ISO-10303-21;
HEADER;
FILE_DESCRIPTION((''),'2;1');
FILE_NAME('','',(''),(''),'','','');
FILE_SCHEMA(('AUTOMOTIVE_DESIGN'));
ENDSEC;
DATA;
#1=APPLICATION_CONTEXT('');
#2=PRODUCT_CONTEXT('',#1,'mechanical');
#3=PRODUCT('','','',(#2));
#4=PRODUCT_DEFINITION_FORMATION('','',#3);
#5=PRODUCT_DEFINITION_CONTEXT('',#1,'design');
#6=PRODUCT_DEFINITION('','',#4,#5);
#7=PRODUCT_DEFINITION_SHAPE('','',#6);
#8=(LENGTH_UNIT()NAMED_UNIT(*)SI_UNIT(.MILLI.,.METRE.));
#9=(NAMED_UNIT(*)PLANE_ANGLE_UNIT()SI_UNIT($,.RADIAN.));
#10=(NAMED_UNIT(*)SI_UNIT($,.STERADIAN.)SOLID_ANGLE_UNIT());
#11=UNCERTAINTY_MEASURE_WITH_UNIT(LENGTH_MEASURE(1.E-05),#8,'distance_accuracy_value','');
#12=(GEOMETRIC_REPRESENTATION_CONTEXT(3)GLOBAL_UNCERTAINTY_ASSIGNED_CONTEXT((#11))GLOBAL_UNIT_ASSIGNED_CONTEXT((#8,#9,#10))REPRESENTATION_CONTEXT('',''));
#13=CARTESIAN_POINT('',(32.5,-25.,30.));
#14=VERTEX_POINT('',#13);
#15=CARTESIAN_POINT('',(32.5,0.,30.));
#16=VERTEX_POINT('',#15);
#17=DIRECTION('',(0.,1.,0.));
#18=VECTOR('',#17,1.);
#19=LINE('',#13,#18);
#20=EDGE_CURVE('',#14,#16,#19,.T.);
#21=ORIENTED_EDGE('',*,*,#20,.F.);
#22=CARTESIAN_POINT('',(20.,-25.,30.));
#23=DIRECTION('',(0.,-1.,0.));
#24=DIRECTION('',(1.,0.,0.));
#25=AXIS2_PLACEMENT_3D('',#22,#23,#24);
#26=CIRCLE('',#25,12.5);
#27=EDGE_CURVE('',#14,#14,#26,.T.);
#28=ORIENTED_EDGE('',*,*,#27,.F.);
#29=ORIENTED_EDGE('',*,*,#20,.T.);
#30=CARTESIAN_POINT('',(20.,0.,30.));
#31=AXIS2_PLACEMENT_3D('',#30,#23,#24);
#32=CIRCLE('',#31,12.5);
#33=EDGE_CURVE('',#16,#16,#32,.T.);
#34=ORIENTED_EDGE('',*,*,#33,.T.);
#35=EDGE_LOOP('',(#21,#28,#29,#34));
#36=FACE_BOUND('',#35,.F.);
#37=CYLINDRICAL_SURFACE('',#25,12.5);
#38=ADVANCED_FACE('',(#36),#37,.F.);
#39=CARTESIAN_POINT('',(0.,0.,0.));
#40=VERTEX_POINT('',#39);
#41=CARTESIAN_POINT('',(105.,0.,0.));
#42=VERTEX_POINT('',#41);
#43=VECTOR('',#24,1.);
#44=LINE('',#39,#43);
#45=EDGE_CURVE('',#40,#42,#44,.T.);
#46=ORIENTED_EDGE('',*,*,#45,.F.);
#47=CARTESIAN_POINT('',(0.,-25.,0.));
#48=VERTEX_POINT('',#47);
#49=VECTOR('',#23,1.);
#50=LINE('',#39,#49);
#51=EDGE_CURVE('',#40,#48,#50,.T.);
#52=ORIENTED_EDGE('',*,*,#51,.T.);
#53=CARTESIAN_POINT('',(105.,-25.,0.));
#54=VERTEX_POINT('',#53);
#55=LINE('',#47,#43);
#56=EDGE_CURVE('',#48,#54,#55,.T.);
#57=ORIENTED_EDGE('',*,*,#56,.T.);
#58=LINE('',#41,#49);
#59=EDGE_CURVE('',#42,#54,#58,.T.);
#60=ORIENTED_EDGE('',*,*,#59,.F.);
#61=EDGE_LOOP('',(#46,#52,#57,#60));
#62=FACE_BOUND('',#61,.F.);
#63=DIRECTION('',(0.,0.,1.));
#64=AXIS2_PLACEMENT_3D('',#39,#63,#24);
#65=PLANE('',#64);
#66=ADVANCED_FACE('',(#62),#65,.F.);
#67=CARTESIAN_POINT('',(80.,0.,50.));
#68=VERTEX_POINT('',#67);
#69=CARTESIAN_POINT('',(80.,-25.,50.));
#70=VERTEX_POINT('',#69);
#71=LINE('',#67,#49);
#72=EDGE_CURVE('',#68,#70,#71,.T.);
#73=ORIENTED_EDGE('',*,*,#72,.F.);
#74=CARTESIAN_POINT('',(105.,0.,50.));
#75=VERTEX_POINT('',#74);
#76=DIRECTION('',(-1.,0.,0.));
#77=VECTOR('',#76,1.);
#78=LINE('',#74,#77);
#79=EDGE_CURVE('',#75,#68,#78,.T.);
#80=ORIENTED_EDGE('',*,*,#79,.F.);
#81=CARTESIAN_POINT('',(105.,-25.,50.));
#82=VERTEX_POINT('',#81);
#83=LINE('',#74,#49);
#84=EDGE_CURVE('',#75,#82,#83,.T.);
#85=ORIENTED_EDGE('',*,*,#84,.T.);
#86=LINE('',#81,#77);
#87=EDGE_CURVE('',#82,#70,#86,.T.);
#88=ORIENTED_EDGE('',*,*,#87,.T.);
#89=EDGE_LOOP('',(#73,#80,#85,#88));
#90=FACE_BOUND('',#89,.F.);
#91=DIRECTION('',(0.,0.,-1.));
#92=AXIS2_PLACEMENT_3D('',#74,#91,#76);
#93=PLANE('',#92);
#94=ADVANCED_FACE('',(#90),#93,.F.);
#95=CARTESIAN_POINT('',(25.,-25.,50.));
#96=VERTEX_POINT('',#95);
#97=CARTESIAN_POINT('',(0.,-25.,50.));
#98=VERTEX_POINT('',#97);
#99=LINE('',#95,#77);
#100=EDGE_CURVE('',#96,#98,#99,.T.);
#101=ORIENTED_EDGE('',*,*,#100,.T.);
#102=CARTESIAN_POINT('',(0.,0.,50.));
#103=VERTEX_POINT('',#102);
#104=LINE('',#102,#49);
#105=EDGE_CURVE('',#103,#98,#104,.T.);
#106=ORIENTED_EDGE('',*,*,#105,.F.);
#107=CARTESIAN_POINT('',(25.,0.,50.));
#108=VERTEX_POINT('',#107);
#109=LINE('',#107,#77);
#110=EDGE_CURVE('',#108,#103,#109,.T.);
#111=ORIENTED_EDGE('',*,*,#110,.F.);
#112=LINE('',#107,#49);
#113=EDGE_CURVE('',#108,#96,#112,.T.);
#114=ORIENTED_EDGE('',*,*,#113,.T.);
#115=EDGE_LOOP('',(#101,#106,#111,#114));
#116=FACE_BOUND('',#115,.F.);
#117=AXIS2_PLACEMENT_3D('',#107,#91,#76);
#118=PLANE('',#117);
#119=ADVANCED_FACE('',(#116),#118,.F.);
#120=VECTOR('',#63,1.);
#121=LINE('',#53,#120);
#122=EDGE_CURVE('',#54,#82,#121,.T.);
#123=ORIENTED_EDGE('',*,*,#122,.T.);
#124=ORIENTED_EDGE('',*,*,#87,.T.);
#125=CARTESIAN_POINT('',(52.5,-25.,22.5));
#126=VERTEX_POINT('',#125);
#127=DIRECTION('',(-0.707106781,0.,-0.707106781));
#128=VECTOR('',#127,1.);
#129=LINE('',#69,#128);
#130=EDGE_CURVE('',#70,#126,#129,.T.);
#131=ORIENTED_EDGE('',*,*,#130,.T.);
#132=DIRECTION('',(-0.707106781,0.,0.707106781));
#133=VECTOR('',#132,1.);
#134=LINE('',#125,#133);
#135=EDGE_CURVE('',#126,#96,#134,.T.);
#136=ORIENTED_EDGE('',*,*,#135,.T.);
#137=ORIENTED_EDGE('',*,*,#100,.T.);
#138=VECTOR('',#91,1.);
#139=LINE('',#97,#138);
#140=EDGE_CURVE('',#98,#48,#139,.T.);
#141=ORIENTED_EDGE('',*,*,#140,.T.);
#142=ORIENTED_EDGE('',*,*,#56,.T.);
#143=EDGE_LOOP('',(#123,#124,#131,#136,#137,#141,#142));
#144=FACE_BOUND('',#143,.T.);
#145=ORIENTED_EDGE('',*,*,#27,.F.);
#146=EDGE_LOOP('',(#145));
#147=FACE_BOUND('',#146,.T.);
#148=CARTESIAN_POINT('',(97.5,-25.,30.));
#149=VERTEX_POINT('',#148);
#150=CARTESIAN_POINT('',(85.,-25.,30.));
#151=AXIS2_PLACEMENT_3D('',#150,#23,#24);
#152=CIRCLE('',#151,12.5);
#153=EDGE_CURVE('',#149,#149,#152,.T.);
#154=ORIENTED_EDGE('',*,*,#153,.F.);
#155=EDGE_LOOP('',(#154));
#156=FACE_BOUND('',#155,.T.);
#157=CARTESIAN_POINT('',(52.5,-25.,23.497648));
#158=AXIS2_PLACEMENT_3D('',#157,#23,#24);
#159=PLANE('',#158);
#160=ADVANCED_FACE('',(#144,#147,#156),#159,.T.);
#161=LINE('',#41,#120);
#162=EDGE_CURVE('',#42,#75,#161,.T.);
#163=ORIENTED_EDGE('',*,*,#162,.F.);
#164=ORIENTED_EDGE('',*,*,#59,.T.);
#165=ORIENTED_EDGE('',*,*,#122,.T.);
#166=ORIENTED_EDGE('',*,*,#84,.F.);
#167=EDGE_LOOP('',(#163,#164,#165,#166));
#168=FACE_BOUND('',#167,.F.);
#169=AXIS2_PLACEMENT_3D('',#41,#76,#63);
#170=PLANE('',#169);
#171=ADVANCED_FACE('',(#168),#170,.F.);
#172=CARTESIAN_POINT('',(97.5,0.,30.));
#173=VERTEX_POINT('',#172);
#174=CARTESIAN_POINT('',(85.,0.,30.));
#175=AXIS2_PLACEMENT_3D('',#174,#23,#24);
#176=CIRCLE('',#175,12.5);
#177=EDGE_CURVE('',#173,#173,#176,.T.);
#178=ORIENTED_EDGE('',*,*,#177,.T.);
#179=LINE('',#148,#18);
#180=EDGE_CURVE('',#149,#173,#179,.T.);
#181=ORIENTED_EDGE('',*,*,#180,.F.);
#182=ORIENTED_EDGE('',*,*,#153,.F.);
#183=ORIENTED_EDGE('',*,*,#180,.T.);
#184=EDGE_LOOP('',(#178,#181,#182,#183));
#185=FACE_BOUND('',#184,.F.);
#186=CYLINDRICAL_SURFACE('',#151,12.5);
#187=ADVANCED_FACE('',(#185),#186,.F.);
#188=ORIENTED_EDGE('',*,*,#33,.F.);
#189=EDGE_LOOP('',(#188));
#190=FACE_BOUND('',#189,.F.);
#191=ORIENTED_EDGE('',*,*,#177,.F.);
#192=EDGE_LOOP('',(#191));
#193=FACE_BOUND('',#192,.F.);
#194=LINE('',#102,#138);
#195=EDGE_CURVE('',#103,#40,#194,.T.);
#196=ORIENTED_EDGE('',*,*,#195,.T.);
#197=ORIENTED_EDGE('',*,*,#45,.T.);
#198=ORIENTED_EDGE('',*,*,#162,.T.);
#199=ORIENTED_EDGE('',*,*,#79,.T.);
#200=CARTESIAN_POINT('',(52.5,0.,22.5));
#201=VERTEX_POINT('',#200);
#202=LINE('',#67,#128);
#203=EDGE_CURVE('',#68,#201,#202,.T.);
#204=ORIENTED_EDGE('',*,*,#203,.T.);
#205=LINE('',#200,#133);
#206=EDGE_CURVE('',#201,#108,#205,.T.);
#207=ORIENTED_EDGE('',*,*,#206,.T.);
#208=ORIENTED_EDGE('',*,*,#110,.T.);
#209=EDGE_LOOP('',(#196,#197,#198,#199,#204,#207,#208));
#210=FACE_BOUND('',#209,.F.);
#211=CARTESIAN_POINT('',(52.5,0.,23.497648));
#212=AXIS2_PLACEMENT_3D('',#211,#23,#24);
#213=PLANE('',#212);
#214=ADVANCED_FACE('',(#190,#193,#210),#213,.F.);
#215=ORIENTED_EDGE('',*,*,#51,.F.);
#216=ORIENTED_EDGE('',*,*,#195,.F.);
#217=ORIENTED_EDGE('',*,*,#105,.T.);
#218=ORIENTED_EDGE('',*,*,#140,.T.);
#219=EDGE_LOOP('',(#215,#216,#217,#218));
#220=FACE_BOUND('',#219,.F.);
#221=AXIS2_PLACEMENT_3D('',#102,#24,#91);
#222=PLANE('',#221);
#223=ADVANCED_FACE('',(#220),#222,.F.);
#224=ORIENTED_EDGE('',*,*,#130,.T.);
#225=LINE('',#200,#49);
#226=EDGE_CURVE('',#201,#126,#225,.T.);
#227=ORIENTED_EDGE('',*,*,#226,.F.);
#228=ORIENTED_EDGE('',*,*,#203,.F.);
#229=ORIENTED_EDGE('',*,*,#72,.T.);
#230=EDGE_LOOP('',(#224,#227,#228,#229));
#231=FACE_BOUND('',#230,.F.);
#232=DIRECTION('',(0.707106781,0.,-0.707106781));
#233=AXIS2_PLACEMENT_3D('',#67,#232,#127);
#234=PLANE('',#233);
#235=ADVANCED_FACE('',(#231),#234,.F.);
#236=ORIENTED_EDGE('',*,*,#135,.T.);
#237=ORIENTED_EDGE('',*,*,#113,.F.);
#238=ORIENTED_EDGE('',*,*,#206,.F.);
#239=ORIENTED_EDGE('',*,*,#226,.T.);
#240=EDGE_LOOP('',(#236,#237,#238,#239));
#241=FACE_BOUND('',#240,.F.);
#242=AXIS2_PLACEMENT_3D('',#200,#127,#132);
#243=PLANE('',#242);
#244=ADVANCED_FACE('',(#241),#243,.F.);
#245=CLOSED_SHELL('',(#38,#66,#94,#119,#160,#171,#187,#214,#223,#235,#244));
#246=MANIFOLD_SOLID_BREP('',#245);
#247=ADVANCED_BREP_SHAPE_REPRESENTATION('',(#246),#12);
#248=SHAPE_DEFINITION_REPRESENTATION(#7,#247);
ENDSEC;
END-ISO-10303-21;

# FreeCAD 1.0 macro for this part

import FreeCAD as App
import Part
import Sketcher

V = App.Vector
Q = App.Units.Quantity


def add_polygon(sketch, points):
    """Adds a closed chain of lines whose ends are joined by coincident constraints."""
    first, n = sketch.GeometryCount, len(points)
    for a, b in zip(points, points[1:] + points[:1]):
        sketch.addGeometry(Part.LineSegment(App.Vector(*a, 0), App.Vector(*b, 0)), False)
    for i in range(n):
        sketch.addConstraint(Sketcher.Constraint("Coincident", first + i, 2, first + (i + 1) % n, 1))

doc = App.newDocument("Part")
body = doc.addObject("PartDesign::Body", "Body")

sketch1 = body.newObject("Sketcher::SketchObject", "Sketch")
sketch1.AttachmentSupport = (doc.getObject("XZ_Plane"), [""])
sketch1.MapMode = "FlatFace"
add_polygon(sketch1, [(0, 50), (0, 0), (105, 0), (105, 50), (80, 50), (52, 22), (25, 50)])
sketch1.addConstraint([
    Sketcher.Constraint("Vertical", 0),
    Sketcher.Constraint("Horizontal", 1),
    Sketcher.Constraint("Vertical", 2),
    Sketcher.Constraint("Horizontal", 3),
    Sketcher.Constraint("Horizontal", 6),
    Sketcher.Constraint("Coincident", 0, 2, -1, 1),
    Sketcher.Constraint("Perpendicular", 4, 5),
    Sketcher.Constraint("Horizontal", 3, 2, 5, 2),
    Sketcher.Constraint("Equal", 3, 6),
    Sketcher.Constraint("Equal", 4, 5),
    Sketcher.Constraint("DistanceX", 1, 1, 1, 2, Q("105 mm")),
    Sketcher.Constraint("DistanceX", 3, 2, 3, 1, Q("25 mm")),
    Sketcher.Constraint("DistanceY", 0, 2, 0, 1, Q("50 mm")),
])
pad1 = body.newObject("PartDesign::Pad", "Pad")
pad1.Profile = sketch1
pad1.Length = 25

sketch2 = body.newObject("Sketcher::SketchObject", "Sketch001")
sketch2.AttachmentSupport = (doc.getObject("XZ_Plane"), [""])
sketch2.MapMode = "FlatFace"
sketch2.AttachmentOffset = App.Placement(V(0, 0, 25), App.Rotation())
sketch2.addGeometry([
    Part.Circle(V(20, 30, 0), V(0, 0, 1), 12),
    Part.Circle(V(85, 30, 0), V(0, 0, 1), 12),
], False)
sketch2.addConstraint([
    Sketcher.Constraint("Equal", 0, 1),
    Sketcher.Constraint("Horizontal", 0, 3, 1, 3),
    Sketcher.Constraint("Diameter", 0, Q("25 mm")),
    Sketcher.Constraint("DistanceX", -1, 1, 0, 3, Q("20 mm")),
    Sketcher.Constraint("DistanceY", -1, 1, 0, 3, Q("30 mm")),
    Sketcher.Constraint("DistanceX", -1, 1, 1, 3, Q("85 mm")),
])
pocket1 = body.newObject("PartDesign::Pocket", "Pocket")
pocket1.Profile = sketch2
pocket1.Type = "ThroughAll"

doc.recompute()
